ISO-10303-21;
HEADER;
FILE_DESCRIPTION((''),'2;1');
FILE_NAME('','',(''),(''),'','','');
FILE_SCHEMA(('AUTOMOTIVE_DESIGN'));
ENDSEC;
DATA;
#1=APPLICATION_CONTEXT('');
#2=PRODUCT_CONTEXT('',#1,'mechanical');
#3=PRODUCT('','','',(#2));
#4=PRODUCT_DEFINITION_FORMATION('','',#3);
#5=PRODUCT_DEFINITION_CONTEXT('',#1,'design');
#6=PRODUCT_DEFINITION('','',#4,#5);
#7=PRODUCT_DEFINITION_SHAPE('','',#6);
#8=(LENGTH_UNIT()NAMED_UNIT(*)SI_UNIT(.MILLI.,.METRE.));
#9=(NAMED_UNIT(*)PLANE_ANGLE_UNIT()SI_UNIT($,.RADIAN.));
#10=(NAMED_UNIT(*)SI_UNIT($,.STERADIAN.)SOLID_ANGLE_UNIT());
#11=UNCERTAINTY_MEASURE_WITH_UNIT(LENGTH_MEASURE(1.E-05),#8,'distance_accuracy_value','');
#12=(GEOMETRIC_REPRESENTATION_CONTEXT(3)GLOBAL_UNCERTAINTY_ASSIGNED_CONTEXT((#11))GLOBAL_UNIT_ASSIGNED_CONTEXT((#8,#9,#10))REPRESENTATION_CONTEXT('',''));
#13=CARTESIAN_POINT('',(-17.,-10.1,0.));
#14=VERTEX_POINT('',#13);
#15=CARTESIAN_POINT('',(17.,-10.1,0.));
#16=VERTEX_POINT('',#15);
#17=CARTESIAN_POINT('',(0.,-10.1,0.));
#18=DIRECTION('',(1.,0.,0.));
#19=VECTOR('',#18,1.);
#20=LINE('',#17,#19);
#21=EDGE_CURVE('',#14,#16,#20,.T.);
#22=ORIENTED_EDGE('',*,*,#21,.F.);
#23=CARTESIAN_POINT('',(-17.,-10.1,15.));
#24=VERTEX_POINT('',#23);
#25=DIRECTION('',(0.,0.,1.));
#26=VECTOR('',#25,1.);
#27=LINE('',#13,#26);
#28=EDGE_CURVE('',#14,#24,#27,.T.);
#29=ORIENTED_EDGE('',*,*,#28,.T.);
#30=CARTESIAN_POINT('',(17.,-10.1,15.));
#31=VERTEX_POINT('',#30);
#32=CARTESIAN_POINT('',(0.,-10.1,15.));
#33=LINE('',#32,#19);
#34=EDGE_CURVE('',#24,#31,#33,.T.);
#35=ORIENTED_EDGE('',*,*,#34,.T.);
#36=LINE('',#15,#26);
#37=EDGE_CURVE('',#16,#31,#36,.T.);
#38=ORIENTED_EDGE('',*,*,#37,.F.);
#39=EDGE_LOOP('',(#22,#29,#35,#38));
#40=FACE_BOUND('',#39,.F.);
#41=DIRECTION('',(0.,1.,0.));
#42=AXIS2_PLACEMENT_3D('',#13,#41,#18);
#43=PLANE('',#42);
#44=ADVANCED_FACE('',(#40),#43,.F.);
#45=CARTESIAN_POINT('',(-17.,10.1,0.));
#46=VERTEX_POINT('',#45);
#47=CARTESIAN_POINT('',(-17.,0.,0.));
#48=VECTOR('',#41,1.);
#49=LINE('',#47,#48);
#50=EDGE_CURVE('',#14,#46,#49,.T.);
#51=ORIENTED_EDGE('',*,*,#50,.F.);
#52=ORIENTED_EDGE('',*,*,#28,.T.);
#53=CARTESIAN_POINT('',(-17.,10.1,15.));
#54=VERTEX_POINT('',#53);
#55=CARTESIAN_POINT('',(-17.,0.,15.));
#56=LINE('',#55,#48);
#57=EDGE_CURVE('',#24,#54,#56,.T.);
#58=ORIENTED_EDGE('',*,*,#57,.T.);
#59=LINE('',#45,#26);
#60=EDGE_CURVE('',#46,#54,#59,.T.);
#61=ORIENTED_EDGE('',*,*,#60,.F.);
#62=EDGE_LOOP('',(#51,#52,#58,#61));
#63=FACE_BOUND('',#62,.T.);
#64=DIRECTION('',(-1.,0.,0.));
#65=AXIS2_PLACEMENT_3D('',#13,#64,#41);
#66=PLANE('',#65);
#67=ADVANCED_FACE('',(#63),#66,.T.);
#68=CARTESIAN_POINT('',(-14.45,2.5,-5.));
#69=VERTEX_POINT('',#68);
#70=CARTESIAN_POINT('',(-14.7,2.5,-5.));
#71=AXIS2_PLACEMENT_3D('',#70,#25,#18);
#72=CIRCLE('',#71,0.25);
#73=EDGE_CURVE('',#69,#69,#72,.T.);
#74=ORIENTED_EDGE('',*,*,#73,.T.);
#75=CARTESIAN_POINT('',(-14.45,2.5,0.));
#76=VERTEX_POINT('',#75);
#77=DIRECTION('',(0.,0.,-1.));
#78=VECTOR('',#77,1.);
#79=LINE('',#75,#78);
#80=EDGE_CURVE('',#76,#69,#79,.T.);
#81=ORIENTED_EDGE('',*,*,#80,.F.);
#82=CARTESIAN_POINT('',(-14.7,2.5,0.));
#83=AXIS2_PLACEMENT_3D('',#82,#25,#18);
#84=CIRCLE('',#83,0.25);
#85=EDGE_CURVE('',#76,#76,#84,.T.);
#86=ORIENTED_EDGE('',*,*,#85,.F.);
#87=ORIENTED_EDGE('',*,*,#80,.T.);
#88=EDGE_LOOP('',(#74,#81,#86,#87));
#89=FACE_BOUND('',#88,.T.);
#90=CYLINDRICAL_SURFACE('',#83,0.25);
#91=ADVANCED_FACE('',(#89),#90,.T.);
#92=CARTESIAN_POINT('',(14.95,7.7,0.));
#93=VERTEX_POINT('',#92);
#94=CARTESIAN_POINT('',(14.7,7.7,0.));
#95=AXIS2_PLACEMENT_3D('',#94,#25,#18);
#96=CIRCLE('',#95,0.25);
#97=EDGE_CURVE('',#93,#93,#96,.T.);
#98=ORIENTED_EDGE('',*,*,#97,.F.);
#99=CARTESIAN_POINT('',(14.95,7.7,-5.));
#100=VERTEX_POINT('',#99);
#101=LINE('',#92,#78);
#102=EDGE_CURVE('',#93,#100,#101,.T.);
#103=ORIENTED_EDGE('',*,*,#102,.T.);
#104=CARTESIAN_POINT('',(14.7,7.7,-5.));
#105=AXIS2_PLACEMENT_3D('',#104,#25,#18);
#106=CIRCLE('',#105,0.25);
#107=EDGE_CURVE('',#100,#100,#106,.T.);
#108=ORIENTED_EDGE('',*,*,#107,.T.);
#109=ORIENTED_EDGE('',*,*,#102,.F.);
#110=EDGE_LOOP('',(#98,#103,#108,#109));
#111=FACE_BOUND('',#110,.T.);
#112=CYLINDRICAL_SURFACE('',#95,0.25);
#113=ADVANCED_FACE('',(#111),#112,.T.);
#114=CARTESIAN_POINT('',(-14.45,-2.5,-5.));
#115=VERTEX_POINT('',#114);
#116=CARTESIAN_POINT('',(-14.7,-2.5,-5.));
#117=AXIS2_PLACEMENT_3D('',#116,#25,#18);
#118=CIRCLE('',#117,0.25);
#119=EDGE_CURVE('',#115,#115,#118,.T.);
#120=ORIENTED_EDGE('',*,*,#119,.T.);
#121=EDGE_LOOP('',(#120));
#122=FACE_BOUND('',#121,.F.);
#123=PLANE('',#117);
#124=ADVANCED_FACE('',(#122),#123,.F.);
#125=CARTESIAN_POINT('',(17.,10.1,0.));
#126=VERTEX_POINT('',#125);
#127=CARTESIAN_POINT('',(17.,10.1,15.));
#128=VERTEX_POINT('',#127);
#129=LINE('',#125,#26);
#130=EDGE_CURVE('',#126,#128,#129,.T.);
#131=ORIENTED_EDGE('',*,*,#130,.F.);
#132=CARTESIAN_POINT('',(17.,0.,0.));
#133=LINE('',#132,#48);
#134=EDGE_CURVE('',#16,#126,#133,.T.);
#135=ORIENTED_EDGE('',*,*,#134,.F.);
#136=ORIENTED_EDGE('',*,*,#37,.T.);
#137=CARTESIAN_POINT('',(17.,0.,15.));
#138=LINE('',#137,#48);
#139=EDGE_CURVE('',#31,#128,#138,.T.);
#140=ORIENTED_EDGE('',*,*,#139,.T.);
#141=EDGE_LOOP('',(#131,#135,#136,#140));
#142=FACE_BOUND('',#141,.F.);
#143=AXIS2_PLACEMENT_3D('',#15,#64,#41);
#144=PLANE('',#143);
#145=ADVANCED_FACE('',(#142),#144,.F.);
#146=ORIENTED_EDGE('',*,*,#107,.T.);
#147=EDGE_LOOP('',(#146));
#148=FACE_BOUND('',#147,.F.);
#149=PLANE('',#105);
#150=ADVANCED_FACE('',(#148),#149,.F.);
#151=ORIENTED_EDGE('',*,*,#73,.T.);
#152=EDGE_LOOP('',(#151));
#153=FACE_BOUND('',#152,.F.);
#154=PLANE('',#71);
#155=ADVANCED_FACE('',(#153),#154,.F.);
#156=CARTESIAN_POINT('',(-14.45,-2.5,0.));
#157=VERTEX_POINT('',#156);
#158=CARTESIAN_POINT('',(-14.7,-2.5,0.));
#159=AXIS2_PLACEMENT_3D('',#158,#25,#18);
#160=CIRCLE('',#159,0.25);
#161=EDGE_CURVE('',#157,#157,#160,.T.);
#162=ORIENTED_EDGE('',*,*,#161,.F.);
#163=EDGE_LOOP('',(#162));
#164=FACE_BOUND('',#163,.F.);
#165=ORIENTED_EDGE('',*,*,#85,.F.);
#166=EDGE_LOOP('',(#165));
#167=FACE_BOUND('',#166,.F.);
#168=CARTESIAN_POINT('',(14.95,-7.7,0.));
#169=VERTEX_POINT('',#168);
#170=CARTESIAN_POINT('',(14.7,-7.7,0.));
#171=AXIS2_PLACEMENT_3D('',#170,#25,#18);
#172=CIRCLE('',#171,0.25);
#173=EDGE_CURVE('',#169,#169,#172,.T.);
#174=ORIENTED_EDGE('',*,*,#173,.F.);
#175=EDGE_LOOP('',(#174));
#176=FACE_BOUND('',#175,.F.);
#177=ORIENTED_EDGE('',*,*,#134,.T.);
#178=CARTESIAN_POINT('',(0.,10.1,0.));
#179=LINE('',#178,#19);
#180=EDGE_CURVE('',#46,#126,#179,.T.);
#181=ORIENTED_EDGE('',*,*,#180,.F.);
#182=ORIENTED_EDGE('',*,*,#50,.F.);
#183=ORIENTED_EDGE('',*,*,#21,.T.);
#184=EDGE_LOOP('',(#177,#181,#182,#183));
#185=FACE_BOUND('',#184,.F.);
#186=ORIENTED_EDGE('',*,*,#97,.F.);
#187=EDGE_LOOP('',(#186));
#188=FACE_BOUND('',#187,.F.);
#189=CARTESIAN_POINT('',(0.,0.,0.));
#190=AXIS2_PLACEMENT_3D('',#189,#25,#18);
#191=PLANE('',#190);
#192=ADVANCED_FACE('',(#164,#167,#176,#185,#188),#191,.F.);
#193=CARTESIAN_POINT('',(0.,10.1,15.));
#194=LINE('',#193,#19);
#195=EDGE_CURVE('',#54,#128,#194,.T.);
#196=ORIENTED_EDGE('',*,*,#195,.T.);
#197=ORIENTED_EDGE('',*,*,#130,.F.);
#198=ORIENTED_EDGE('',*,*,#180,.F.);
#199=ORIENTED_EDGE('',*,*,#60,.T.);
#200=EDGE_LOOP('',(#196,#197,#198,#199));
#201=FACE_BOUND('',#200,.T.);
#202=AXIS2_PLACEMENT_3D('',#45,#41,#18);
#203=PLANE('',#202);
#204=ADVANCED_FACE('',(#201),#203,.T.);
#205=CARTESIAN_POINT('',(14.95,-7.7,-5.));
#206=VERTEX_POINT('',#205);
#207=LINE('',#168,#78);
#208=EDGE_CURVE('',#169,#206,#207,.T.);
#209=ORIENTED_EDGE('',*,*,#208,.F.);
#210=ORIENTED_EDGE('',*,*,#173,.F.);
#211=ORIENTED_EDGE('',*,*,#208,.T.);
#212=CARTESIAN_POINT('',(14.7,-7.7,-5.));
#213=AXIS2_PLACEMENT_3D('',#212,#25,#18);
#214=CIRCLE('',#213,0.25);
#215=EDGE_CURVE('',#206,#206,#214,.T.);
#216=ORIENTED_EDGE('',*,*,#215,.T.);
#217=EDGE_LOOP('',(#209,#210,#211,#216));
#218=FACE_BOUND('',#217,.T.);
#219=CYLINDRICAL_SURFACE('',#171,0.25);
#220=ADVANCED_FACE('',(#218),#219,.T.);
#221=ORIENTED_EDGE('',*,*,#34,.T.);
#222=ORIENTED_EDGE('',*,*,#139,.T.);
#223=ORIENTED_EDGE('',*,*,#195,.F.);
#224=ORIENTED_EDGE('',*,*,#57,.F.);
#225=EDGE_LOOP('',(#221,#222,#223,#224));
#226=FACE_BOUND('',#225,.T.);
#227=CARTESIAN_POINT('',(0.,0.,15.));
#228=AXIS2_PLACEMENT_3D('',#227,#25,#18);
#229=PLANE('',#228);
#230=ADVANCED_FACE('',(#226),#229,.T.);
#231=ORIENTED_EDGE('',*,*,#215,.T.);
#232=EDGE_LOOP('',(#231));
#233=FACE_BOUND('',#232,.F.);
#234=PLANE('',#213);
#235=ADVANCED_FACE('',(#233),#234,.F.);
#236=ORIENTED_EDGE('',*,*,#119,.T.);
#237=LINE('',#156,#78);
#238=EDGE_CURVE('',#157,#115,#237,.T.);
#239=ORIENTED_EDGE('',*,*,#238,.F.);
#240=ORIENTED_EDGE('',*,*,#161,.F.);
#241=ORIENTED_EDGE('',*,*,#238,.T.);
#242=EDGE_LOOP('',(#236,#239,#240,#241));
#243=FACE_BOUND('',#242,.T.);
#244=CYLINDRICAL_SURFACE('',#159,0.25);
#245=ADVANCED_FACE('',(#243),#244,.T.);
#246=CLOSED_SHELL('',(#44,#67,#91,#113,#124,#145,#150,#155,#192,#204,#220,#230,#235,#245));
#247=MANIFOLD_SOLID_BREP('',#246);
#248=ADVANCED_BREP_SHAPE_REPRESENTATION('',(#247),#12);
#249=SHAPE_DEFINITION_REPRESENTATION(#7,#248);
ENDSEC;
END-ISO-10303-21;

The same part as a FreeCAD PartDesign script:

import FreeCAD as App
import Part
import Sketcher

V = App.Vector
Q = App.Units.Quantity

doc = App.newDocument("Part")
body = doc.addObject("PartDesign::Body", "Body")

sketch1 = body.newObject("Sketcher::SketchObject", "Sketch")
sketch1.AttachmentSupport = (doc.getObject("XY_Plane"), [""])
sketch1.MapMode = "FlatFace"
sketch1.addGeometry(Part.LineSegment(V(-17, 10.1, 0), V(-17, -10.1, 0)), False)
sketch1.addGeometry(Part.LineSegment(V(-17, -10.1, 0), V(17, -10.1, 0)), False)
sketch1.addGeometry(Part.LineSegment(V(17, -10.1, 0), V(17, 10.1, 0)), False)
sketch1.addGeometry(Part.LineSegment(V(17, 10.1, 0), V(-17, 10.1, 0)), False)
sketch1.addConstraint(Sketcher.Constraint("Coincident", 0, 2, 1, 1))
sketch1.addConstraint(Sketcher.Constraint("Coincident", 1, 2, 2, 1))
sketch1.addConstraint(Sketcher.Constraint("Coincident", 2, 2, 3, 1))
sketch1.addConstraint(Sketcher.Constraint("Coincident", 3, 2, 0, 1))
sketch1.addConstraint(Sketcher.Constraint("Vertical", 0))
sketch1.addConstraint(Sketcher.Constraint("Horizontal", 1))
sketch1.addConstraint(Sketcher.Constraint("Vertical", 2))
sketch1.addConstraint(Sketcher.Constraint("Horizontal", 3))
sketch1.addConstraint(Sketcher.Constraint("Symmetric", 0, 2, 2, 2, -1, 1))
sketch1.addConstraint(Sketcher.Constraint("DistanceX", 1, 1, 1, 2, Q("34 mm")))
sketch1.addConstraint(Sketcher.Constraint("DistanceY", 0, 2, 0, 1, Q("20.2 mm")))
pad1 = body.newObject("PartDesign::Pad", "Pad")
pad1.Profile = sketch1
pad1.Length = 15

sketch2 = body.newObject("Sketcher::SketchObject", "Sketch001")
sketch2.AttachmentSupport = (doc.getObject("XY_Plane"), [""])
sketch2.MapMode = "FlatFace"
sketch2.addGeometry(Part.Circle(V(14.7, 7.7, 0), V(0, 0, 1), 0.25), False)
sketch2.addGeometry(Part.Circle(V(-14.7, -2.5, 0), V(0, 0, 1), 0.25), False)
sketch2.addGeometry(Part.Circle(V(-14.7, 2.5, 0), V(0, 0, 1), 0.25), False)
sketch2.addGeometry(Part.Circle(V(14.7, -7.7, 0), V(0, 0, 1), 0.25), False)
sketch2.addConstraint(Sketcher.Constraint("Equal", 0, 1))
sketch2.addConstraint(Sketcher.Constraint("Equal", 1, 2))
sketch2.addConstraint(Sketcher.Constraint("Equal", 2, 3))
sketch2.addConstraint(Sketcher.Constraint("Symmetric", 1, 3, 2, 3, -1))
sketch2.addConstraint(Sketcher.Constraint("Symmetric", 0, 3, 3, 3, -1))
sketch2.addConstraint(Sketcher.Constraint("Diameter", 0, Q("0.5 mm")))
sketch2.addConstraint(Sketcher.Constraint("DistanceY", 1, 3, 2, 3, Q("5 mm")))
sketch2.addConstraint(Sketcher.Constraint("DistanceX", -1, 1, 0, 3, Q("14.7 mm")))
sketch2.addConstraint(Sketcher.Constraint("DistanceY", -1, 1, 0, 3, Q("7.7 mm")))
sketch2.addConstraint(Sketcher.Constraint("DistanceX", 1, 3, -1, 1, Q("14.7 mm")))
pad2 = body.newObject("PartDesign::Pad", "Pad001")
pad2.Profile = sketch2
pad2.Length = 5
pad2.Reversed = True

doc.recompute()
